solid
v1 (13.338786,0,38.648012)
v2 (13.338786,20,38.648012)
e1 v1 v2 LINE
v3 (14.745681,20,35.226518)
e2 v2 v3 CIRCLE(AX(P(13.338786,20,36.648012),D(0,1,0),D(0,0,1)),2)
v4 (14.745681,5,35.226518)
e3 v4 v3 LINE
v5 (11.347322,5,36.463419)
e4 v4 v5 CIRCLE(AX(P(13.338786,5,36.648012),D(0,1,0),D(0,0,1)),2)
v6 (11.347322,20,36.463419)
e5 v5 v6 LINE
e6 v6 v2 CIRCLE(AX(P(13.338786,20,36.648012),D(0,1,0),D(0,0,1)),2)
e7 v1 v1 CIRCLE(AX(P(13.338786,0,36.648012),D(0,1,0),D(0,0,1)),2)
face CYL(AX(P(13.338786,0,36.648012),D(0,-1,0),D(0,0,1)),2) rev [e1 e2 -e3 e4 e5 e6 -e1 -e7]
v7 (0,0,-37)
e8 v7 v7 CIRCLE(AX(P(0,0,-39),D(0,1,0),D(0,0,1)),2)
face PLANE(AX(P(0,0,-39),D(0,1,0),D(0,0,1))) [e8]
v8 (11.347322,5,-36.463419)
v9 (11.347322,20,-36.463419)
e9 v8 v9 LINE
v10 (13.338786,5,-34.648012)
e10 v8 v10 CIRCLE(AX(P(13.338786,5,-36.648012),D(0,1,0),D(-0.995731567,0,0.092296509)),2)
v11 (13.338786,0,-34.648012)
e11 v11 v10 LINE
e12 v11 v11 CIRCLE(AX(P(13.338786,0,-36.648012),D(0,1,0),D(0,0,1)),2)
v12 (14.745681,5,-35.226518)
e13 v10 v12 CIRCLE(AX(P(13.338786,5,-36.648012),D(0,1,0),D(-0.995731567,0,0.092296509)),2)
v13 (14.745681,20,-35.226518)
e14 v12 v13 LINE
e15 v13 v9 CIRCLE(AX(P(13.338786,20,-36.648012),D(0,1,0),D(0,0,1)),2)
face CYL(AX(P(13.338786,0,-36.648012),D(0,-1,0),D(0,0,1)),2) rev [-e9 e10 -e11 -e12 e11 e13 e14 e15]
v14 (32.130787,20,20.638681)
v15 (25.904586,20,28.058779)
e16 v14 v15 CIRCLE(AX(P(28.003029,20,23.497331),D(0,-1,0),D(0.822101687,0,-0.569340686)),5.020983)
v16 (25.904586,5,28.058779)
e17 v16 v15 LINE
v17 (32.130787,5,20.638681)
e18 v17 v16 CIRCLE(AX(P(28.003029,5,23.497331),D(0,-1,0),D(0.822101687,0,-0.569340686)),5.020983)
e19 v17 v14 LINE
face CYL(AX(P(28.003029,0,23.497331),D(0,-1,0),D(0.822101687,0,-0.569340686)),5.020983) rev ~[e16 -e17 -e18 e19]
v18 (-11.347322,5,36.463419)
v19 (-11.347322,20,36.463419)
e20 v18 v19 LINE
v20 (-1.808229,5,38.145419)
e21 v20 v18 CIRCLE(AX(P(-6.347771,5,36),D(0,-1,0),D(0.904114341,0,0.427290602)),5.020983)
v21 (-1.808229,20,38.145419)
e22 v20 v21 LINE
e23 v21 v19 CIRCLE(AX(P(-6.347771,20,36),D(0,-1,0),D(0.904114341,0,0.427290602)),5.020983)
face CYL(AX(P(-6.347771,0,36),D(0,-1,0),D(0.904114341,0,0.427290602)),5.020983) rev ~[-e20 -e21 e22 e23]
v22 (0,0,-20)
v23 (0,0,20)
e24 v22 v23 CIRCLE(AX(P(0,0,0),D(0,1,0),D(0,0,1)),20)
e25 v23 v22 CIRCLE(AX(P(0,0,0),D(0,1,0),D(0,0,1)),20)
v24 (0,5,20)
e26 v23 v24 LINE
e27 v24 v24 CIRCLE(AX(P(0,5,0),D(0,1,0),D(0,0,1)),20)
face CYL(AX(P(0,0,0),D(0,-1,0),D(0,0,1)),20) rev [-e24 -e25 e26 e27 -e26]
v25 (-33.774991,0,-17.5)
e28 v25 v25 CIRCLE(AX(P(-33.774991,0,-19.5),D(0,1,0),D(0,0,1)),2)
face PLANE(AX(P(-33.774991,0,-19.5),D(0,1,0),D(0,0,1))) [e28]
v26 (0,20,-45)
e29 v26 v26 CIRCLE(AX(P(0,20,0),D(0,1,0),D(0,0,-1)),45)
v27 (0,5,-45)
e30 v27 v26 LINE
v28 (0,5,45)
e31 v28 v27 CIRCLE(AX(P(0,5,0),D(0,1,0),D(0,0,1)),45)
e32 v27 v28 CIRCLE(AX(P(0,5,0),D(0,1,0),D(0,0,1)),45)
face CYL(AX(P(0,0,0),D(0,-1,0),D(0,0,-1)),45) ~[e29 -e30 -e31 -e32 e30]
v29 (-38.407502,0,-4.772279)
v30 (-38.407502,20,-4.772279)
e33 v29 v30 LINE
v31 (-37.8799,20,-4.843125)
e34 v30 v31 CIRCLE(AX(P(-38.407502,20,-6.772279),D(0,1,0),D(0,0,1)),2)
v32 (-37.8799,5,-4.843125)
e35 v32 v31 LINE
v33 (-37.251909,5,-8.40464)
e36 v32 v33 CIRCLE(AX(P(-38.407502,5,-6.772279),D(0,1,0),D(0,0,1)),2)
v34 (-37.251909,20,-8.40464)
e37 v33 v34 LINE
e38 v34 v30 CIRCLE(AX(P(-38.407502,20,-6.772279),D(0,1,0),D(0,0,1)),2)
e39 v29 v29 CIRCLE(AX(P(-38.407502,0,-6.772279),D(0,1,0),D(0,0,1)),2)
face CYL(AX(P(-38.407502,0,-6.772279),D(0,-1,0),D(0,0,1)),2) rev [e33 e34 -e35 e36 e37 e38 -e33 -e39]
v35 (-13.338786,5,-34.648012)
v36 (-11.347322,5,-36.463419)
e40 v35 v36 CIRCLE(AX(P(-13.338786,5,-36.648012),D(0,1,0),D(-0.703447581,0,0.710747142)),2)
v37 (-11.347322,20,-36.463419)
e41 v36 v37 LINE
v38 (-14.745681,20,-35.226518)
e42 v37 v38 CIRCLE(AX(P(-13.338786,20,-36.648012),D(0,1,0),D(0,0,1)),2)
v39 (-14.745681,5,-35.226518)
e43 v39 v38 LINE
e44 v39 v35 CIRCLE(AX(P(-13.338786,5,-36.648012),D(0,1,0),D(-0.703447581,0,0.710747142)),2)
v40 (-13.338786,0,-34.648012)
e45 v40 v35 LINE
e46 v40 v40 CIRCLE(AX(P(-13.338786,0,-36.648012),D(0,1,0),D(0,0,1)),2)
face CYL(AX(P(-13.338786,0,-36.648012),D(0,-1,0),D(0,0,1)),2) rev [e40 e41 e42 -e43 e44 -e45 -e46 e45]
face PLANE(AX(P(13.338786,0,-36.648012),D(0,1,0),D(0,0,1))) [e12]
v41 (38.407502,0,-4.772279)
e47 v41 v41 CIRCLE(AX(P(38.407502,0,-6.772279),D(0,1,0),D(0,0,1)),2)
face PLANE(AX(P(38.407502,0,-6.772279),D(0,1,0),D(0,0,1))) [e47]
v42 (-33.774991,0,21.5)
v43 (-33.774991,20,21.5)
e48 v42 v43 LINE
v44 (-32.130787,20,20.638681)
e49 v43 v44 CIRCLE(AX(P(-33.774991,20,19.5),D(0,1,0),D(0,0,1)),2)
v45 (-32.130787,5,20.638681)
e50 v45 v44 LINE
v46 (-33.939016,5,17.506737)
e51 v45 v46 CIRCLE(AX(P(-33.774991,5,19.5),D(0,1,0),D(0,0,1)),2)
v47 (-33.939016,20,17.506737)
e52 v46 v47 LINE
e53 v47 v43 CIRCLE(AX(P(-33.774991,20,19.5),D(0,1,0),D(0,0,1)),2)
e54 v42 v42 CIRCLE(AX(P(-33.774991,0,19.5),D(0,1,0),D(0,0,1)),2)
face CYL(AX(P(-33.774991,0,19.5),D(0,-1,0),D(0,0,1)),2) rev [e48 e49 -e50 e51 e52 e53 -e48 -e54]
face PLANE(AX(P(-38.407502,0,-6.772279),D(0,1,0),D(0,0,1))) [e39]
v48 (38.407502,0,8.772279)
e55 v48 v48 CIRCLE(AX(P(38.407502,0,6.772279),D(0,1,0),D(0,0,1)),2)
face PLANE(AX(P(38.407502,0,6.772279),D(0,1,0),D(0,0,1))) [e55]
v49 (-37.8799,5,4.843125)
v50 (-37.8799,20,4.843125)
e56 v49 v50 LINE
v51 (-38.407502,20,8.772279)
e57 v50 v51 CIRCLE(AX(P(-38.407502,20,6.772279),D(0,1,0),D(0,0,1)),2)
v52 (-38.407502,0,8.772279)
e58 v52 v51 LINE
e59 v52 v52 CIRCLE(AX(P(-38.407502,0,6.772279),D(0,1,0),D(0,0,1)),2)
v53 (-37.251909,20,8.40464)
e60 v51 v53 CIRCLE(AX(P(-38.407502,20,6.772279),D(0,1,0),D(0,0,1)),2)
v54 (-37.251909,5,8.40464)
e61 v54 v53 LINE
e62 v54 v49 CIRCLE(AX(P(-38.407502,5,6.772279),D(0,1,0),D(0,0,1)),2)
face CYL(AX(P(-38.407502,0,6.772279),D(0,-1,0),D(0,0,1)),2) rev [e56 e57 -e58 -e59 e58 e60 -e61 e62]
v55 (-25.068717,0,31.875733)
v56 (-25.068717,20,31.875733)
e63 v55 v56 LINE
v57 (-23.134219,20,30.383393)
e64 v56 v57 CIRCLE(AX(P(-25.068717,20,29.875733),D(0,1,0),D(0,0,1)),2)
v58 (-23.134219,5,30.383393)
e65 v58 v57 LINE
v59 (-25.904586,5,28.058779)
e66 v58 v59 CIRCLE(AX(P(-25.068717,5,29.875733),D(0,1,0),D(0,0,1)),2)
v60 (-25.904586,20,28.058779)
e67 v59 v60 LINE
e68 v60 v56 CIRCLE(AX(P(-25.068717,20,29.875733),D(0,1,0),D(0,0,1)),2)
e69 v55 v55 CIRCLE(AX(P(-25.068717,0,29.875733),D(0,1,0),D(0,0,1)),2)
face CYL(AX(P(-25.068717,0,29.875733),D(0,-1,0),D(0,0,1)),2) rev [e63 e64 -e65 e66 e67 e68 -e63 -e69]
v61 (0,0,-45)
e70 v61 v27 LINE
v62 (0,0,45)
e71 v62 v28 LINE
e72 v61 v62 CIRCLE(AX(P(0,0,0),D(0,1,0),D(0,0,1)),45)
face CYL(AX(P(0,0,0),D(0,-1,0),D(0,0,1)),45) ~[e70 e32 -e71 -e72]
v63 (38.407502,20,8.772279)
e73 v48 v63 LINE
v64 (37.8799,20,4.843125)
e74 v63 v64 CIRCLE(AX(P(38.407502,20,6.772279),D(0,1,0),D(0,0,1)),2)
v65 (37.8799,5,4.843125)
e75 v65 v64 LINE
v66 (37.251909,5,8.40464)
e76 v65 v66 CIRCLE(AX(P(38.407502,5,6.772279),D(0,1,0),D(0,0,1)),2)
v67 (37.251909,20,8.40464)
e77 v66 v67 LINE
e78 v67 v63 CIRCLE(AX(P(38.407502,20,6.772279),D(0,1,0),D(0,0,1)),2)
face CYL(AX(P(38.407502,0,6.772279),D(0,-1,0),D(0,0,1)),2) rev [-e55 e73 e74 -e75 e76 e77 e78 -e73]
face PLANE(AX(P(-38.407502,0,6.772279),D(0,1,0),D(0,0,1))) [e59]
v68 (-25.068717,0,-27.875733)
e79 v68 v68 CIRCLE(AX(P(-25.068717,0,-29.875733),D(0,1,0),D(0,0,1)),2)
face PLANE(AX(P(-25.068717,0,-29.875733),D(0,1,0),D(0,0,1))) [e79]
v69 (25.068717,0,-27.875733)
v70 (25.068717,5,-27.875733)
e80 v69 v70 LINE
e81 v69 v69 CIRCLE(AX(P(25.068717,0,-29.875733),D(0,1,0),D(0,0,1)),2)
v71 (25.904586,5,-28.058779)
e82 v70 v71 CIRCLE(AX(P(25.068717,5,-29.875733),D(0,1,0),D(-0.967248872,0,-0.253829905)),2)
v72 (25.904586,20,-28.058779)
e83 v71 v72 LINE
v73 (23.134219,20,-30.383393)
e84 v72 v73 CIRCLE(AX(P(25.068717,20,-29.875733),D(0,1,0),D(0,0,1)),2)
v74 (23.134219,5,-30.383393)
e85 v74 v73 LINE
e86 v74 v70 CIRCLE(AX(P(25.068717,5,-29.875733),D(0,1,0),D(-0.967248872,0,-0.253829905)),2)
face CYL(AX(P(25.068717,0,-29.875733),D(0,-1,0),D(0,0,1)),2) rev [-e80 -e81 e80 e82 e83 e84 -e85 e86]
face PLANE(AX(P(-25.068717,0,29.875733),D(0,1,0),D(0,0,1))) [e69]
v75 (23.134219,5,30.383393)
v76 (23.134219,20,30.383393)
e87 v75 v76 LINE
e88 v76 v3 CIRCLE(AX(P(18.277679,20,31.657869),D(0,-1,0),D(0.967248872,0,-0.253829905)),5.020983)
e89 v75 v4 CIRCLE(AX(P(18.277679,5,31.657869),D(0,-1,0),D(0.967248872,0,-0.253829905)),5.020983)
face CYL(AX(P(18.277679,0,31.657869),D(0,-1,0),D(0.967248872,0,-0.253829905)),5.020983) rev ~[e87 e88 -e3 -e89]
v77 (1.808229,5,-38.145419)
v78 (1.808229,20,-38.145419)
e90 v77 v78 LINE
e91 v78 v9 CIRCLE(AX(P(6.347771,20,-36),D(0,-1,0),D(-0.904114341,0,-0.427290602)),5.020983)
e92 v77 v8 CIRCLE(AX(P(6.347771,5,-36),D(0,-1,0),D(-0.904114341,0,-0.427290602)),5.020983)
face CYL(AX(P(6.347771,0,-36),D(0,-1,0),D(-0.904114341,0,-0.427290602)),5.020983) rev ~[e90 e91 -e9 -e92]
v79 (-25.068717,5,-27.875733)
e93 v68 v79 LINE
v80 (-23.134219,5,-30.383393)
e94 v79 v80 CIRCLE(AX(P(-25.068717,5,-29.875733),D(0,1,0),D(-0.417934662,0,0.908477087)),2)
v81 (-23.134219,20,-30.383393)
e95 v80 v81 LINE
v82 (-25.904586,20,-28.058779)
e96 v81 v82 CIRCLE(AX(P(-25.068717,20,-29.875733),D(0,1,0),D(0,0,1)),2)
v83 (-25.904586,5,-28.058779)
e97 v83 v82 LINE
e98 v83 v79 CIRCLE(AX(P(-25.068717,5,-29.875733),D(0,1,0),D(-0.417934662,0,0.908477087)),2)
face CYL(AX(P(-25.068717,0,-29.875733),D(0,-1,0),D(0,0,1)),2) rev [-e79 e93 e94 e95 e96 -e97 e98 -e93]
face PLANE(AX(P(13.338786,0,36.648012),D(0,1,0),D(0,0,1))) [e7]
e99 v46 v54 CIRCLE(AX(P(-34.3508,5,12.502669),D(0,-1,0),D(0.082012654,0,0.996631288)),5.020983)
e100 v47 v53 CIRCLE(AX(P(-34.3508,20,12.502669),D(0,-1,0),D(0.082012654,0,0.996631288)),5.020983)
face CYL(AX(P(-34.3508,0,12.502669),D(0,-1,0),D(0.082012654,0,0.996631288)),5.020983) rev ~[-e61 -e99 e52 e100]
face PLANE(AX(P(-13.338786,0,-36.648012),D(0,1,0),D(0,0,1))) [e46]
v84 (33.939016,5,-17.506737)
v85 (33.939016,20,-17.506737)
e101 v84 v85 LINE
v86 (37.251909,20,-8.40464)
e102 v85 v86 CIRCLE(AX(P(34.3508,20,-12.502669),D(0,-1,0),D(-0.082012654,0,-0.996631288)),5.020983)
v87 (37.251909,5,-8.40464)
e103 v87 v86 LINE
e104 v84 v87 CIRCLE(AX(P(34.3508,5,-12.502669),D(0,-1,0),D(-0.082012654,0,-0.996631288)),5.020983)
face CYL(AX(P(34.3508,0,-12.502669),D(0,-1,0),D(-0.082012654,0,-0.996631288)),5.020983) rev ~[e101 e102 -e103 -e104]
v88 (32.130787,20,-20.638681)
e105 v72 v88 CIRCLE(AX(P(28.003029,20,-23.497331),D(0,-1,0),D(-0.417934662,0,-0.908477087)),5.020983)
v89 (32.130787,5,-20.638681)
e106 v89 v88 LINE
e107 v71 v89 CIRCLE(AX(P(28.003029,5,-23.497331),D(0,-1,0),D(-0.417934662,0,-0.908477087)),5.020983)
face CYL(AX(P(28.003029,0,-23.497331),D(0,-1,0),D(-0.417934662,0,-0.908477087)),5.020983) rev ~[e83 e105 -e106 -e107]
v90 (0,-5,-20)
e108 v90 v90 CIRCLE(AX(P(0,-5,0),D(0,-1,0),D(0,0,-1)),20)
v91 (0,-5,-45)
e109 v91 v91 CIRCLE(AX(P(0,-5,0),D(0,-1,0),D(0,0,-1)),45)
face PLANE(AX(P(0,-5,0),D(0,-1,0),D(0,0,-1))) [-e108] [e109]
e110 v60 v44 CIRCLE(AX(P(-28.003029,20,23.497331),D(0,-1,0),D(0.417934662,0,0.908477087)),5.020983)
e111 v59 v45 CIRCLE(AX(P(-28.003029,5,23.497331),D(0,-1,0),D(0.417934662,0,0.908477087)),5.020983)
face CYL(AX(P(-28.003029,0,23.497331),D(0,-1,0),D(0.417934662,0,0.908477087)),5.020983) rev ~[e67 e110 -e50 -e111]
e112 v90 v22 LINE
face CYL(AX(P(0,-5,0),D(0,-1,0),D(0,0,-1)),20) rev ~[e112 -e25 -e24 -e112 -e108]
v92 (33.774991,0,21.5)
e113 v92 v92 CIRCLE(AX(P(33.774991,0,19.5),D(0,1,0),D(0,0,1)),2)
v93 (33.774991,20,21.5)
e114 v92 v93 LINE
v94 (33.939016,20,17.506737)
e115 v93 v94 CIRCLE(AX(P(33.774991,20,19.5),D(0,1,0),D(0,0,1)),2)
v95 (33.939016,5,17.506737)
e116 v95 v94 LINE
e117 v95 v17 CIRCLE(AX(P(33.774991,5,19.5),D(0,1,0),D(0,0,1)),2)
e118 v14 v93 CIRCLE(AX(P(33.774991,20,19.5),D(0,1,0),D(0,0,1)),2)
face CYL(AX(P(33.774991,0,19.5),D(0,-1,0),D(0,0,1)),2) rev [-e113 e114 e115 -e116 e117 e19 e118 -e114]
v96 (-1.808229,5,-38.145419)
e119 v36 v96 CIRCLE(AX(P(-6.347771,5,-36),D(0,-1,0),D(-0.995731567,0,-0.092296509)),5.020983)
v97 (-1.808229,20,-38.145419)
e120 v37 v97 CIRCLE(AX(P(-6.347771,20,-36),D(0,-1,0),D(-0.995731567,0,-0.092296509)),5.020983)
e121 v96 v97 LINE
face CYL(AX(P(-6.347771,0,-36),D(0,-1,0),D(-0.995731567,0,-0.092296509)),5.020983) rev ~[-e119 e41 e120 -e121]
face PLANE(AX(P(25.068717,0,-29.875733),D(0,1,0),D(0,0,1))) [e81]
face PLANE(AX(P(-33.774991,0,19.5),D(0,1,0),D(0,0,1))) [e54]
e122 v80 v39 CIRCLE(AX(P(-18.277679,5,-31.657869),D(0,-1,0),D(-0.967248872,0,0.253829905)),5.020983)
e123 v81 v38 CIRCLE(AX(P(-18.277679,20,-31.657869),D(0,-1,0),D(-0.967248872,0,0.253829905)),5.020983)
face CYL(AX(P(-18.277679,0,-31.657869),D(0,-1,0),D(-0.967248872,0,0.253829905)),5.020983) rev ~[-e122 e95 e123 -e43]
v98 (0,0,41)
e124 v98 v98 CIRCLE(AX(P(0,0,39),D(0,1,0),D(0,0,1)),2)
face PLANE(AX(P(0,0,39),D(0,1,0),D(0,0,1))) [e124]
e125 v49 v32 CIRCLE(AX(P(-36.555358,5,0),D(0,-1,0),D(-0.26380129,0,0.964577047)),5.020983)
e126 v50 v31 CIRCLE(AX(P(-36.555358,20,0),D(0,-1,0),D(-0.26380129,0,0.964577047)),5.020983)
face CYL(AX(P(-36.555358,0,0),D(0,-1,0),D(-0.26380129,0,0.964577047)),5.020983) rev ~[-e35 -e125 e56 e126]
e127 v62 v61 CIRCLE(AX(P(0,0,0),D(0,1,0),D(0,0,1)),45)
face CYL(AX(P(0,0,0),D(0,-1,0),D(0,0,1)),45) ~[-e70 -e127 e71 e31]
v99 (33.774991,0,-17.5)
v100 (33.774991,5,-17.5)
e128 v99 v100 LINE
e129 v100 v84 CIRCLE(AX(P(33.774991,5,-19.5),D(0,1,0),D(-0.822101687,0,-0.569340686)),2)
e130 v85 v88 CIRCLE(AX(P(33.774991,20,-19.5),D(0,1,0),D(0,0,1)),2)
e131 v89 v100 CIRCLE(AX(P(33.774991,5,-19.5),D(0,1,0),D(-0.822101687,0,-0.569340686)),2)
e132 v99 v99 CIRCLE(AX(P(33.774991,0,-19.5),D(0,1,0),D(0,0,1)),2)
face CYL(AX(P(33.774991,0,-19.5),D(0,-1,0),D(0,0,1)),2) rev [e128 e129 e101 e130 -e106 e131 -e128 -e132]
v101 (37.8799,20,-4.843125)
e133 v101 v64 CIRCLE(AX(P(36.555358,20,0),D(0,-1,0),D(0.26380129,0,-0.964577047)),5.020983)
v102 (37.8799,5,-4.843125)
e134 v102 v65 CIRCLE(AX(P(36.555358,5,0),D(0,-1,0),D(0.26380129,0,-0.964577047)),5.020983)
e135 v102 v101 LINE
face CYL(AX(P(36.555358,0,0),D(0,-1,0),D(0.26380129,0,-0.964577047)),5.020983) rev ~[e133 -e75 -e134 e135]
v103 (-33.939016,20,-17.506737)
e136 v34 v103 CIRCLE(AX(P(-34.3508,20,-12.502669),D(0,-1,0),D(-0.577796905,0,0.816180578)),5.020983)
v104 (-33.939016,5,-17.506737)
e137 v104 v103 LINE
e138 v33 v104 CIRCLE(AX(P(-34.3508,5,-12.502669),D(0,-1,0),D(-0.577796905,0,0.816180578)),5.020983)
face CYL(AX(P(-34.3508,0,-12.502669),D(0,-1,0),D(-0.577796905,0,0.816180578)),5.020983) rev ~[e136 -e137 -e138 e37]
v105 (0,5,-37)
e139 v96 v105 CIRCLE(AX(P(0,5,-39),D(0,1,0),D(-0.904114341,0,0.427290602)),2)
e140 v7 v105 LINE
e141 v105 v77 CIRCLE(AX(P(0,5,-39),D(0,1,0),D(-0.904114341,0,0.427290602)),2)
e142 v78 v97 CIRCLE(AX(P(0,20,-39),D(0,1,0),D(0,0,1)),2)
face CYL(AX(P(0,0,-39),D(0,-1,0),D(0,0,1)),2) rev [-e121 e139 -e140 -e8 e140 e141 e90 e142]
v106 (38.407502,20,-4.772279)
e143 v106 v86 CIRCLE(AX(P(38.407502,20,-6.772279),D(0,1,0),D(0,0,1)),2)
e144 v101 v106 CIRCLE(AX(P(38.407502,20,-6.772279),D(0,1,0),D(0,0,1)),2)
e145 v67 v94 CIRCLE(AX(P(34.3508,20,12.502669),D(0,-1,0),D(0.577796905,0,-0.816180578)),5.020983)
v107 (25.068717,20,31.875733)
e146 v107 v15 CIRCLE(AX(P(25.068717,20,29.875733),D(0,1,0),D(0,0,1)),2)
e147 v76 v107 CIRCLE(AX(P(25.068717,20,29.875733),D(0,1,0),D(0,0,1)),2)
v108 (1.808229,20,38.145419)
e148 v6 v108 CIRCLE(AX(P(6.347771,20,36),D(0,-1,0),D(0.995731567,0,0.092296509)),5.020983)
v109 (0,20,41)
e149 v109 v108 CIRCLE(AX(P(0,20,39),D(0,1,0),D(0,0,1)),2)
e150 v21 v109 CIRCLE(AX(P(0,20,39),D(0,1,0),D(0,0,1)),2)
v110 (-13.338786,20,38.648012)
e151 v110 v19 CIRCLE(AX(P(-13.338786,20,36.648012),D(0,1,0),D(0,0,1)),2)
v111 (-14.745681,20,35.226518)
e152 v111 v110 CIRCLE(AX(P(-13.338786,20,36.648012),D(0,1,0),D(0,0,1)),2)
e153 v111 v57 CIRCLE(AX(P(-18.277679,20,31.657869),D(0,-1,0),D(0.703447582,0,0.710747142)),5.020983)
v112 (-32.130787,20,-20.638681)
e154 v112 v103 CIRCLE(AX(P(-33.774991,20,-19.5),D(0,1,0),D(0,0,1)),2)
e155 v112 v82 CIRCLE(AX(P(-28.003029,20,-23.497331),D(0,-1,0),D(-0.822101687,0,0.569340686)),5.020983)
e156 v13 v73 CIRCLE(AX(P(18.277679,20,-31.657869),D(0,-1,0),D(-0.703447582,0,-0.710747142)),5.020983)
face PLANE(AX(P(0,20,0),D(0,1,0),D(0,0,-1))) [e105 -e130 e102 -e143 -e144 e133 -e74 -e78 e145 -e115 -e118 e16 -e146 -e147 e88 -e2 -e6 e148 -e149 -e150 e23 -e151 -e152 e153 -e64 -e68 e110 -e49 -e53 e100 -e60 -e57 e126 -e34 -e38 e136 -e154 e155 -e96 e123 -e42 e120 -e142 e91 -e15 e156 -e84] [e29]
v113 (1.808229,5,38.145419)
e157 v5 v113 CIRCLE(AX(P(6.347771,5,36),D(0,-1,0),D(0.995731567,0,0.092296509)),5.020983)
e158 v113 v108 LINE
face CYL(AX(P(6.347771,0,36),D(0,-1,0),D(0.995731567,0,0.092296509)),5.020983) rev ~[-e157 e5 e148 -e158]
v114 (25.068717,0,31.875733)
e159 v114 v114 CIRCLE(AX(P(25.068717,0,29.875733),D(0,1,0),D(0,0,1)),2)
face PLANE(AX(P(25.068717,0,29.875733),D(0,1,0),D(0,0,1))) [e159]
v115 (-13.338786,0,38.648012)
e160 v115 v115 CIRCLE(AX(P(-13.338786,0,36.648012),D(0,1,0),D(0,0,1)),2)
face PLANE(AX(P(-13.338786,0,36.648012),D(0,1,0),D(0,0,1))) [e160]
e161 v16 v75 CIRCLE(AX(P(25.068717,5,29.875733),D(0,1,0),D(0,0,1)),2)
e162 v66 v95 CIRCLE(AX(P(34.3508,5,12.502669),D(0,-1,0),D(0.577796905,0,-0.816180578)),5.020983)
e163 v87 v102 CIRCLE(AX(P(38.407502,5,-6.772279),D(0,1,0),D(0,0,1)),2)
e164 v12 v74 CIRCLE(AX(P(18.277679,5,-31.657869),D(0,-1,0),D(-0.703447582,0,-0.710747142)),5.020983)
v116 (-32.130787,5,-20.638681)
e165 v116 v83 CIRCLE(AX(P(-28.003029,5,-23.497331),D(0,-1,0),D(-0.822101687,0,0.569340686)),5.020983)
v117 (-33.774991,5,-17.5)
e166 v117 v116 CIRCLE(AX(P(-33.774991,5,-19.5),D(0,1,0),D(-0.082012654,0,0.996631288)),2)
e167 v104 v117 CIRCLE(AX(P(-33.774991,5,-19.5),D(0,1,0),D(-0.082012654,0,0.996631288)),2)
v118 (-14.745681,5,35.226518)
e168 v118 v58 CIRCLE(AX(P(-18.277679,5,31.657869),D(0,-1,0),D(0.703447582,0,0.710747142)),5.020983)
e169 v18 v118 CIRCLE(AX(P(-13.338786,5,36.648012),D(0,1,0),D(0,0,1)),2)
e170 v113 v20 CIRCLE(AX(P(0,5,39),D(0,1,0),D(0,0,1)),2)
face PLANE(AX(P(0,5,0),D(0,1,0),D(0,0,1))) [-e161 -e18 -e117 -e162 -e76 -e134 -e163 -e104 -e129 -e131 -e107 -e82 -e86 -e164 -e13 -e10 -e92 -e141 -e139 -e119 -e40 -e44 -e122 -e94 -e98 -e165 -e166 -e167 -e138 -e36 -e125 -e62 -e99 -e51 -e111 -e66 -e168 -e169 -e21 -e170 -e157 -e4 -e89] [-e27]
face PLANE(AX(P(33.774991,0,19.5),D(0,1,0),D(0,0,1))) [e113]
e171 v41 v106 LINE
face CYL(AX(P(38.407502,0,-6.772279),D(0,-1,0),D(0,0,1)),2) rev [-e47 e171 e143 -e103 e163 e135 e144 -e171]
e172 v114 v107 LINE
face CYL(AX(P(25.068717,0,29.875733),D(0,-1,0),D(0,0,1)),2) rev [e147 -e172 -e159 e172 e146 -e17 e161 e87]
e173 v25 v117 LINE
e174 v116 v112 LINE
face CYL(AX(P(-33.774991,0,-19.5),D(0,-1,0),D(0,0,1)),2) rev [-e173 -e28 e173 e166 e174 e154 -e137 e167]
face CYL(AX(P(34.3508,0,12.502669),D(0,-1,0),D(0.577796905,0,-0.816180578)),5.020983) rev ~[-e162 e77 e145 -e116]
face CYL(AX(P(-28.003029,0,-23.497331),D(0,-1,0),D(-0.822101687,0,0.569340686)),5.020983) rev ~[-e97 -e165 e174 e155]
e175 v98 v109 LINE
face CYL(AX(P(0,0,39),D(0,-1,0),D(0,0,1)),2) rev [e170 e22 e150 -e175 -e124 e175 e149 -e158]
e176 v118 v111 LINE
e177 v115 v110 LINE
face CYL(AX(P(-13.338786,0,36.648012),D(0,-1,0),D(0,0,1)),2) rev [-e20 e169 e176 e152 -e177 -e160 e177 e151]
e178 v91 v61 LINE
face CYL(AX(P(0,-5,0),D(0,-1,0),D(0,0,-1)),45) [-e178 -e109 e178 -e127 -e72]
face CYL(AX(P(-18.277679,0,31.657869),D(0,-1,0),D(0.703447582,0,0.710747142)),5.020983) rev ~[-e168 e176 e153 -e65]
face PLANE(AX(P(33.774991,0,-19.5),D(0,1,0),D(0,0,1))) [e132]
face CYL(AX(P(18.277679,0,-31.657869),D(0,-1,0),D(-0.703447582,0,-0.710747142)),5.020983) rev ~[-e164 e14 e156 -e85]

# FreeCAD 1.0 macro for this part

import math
import FreeCAD as App
import Part
import Sketcher

V = App.Vector
Q = App.Units.Quantity

doc = App.newDocument("Part")
body = doc.addObject("PartDesign::Body", "Body")

# Sketch on XZ plane
sketch1 = body.newObject("Sketcher::SketchObject", "Sketch")
sketch1.AttachmentSupport = (doc.getObject("XZ_Plane"), [""])
sketch1.MapMode = "FlatFace"
sketch1.addGeometry(Part.Circle(V(0, 0, 0), V(0, 0, 1), 45), False)
sketch1.addGeometry(Part.Circle(V(-25.1, -29.9, 0), V(0, 0, 1), 2), False)
sketch1.addGeometry(Part.Circle(V(-33.8, -19.5, 0), V(0, 0, 1), 2), False)
sketch1.addGeometry(Part.Circle(V(-38.4, -6.8, 0), V(0, 0, 1), 2), False)
sketch1.addGeometry(Part.Circle(V(-13.3, -36.6, 0), V(0, 0, 1), 2), False)
sketch1.addGeometry(Part.Circle(V(0, -39, 0), V(0, 0, 1), 2), False)
sketch1.addGeometry(Part.Circle(V(-38.4, 6.8, 0), V(0, 0, 1), 2), False)
sketch1.addGeometry(Part.Circle(V(-33.8, 19.5, 0), V(0, 0, 1), 2), False)
sketch1.addGeometry(Part.Circle(V(-25.1, 29.9, 0), V(0, 0, 1), 2), False)
sketch1.addGeometry(Part.Circle(V(-13.3, 36.6, 0), V(0, 0, 1), 2), False)
sketch1.addGeometry(Part.Circle(V(13.3, -36.6, 0), V(0, 0, 1), 2), False)
sketch1.addGeometry(Part.Circle(V(25.1, -29.9, 0), V(0, 0, 1), 2), False)
sketch1.addGeometry(Part.Circle(V(33.8, -19.5, 0), V(0, 0, 1), 2), False)
sketch1.addGeometry(Part.Circle(V(38.4, -6.8, 0), V(0, 0, 1), 2), False)
sketch1.addGeometry(Part.Circle(V(0, 0, 0), V(0, 0, 1), 20), False)
sketch1.addGeometry(Part.Circle(V(0, 39, 0), V(0, 0, 1), 2), False)
sketch1.addGeometry(Part.Circle(V(13.3, 36.6, 0), V(0, 0, 1), 2), False)
sketch1.addGeometry(Part.Circle(V(38.4, 6.8, 0), V(0, 0, 1), 2), False)
sketch1.addGeometry(Part.Circle(V(33.8, 19.5, 0), V(0, 0, 1), 2), False)
sketch1.addGeometry(Part.Circle(V(25.1, 29.9, 0), V(0, 0, 1), 2), False)
sketch1.addConstraint(Sketcher.Constraint("Coincident", 0, 3, -1, 1))
sketch1.addConstraint(Sketcher.Constraint("Coincident", 14, 3, -1, 1))
sketch1.addConstraint(Sketcher.Constraint("Equal", 1, 2))
sketch1.addConstraint(Sketcher.Constraint("Equal", 2, 3))
sketch1.addConstraint(Sketcher.Constraint("Equal", 3, 4))
sketch1.addConstraint(Sketcher.Constraint("Equal", 4, 5))
sketch1.addConstraint(Sketcher.Constraint("Equal", 5, 6))
sketch1.addConstraint(Sketcher.Constraint("Equal", 6, 7))
sketch1.addConstraint(Sketcher.Constraint("Equal", 7, 8))
sketch1.addConstraint(Sketcher.Constraint("Equal", 8, 9))
sketch1.addConstraint(Sketcher.Constraint("Equal", 9, 10))
sketch1.addConstraint(Sketcher.Constraint("Equal", 10, 11))
sketch1.addConstraint(Sketcher.Constraint("Equal", 11, 12))
sketch1.addConstraint(Sketcher.Constraint("Equal", 12, 13))
sketch1.addConstraint(Sketcher.Constraint("Equal", 13, 15))
sketch1.addConstraint(Sketcher.Constraint("Equal", 15, 16))
sketch1.addConstraint(Sketcher.Constraint("Equal", 16, 17))
sketch1.addConstraint(Sketcher.Constraint("Equal", 17, 18))
sketch1.addConstraint(Sketcher.Constraint("Equal", 18, 19))
sketch1.addConstraint(Sketcher.Constraint("Symmetric", 9, 3, 10, 3, -1, 1))
sketch1.addConstraint(Sketcher.Constraint("Symmetric", 8, 3, 11, 3, -1, 1))
sketch1.addConstraint(Sketcher.Constraint("Symmetric", 7, 3, 12, 3, -1, 1))
sketch1.addConstraint(Sketcher.Constraint("Symmetric", 6, 3, 13, 3, -1, 1))
sketch1.addConstraint(Sketcher.Constraint("Symmetric", 5, 3, 15, 3, -1, 1))
sketch1.addConstraint(Sketcher.Constraint("Symmetric", 4, 3, 16, 3, -1, 1))
sketch1.addConstraint(Sketcher.Constraint("Symmetric", 3, 3, 17, 3, -1, 1))
sketch1.addConstraint(Sketcher.Constraint("Symmetric", 2, 3, 18, 3, -1, 1))
sketch1.addConstraint(Sketcher.Constraint("Symmetric", 1, 3, 19, 3, -1, 1))
sketch1.addConstraint(Sketcher.Constraint("Symmetric", 4, 3, 10, 3, -2))
sketch1.addConstraint(Sketcher.Constraint("Symmetric", 1, 3, 11, 3, -2))
sketch1.addConstraint(Sketcher.Constraint("Symmetric", 2, 3, 12, 3, -2))
sketch1.addConstraint(Sketcher.Constraint("Symmetric", 3, 3, 13, 3, -2))
sketch1.addConstraint(Sketcher.Constraint("PointOnObject", 5, 3, -2))
sketch1.addConstraint(Sketcher.Constraint("Diameter", 0, Q("90 mm")))
sketch1.addConstraint(Sketcher.Constraint("Diameter", 1, Q("4 mm")))
sketch1.addConstraint(Sketcher.Constraint("Diameter", 14, Q("40 mm")))
sketch1.addConstraint(Sketcher.Constraint("DistanceY", 5, 3, -1, 1, Q("39 mm")))
sketch1.addConstraint(Sketcher.Constraint("DistanceY", 2, 3, 7, 3, Q("39 mm")))
sketch1.addConstraint(Sketcher.Constraint("DistanceX", 2, 3, -1, 1, Q("33.774991 mm")))
sketch1.addConstraint(Sketcher.Constraint("DistanceY", 3, 3, -1, 1, Q("6.772279 mm")))
sketch1.addConstraint(Sketcher.Constraint("DistanceX", 3, 3, 2, 3, Q("4.632512 mm")))
sketch1.addConstraint(Sketcher.Constraint("DistanceX", 1, 3, 4, 3, Q("11.729931 mm")))
sketch1.addConstraint(Sketcher.Constraint("DistanceY", 4, 3, 1, 3, Q("6.772279 mm")))
sketch1.addConstraint(Sketcher.Constraint("DistanceY", 4, 3, 6, 3, Q("43.420291 mm")))
sketch1.addConstraint(Sketcher.Constraint("DistanceX", 4, 3, 10, 3, Q("26.677571 mm")))
pad1 = body.newObject("PartDesign::Pad", "Pad")
pad1.Profile = sketch1
pad1.Length = 5
pad1.Reversed = True

# Sketch on XZ plane
sketch2 = body.newObject("Sketcher::SketchObject", "Sketch001")
sketch2.AttachmentSupport = (doc.getObject("XZ_Plane"), [""])
sketch2.MapMode = "FlatFace"
sketch2.AttachmentOffset = App.Placement(V(0, 0, 5), App.Rotation())
sketch2.addGeometry(Part.Circle(V(0, 0, 0), V(0, 0, 1), 45), False)
sketch2.addGeometry(Part.Circle(V(0, 0, 0), V(0, 0, 1), 20), False)
sketch2.addConstraint(Sketcher.Constraint("Coincident", 0, 3, -1, 1))
sketch2.addConstraint(Sketcher.Constraint("Coincident", 1, 3, -1, 1))
sketch2.addConstraint(Sketcher.Constraint("Diameter", 0, Q("90 mm")))
sketch2.addConstraint(Sketcher.Constraint("Diameter", 1, Q("40 mm")))
pad2 = body.newObject("PartDesign::Pad", "Pad001")
pad2.Profile = sketch2
pad2.Length = 5
pad2.Reversed = True

# Sketch on XZ plane
sketch3 = body.newObject("Sketcher::SketchObject", "Sketch002")
sketch3.AttachmentSupport = (doc.getObject("XZ_Plane"), [""])
sketch3.MapMode = "FlatFace"
sketch3.addGeometry(Part.Circle(V(0, 0, 0), V(0, 0, 1), 45), False)
sketch3.addGeometry(Part.ArcOfCircle(Part.Circle(V(-34.4, -12.5, 0), V(0, 0, 1), 5), math.radians(125), math.radians(275)), False)
sketch3.addGeometry(Part.ArcOfCircle(Part.Circle(V(-33.8, -19.5, 0), V(0, 0, 1), 2), math.radians(-35), math.radians(95)), False)
sketch3.addGeometry(Part.ArcOfCircle(Part.Circle(V(-28, -23.5, 0), V(0, 0, 1), 5), math.radians(145), math.radians(295)), False)
sketch3.addGeometry(Part.ArcOfCircle(Part.Circle(V(-25.1, -29.9, 0), V(0, 0, 1), 2), math.radians(-15), math.radians(115)), False)
sketch3.addGeometry(Part.ArcOfCircle(Part.Circle(V(-18.3, -31.7, 0), V(0, 0, 1), 5), math.radians(165), math.radians(315)), False)
sketch3.addGeometry(Part.ArcOfCircle(Part.Circle(V(-13.3, -36.6, 0), V(0, 0, 1), 2), math.radians(5), math.radians(135)), False)
sketch3.addGeometry(Part.ArcOfCircle(Part.Circle(V(-6.3, -36, 0), V(0, 0, 1), 5), math.radians(-175), math.radians(-25)), False)
sketch3.addGeometry(Part.ArcOfCircle(Part.Circle(V(0, -39, 0), V(0, 0, 1), 2), math.radians(25), math.radians(155)), False)
sketch3.addGeometry(Part.ArcOfCircle(Part.Circle(V(6.3, -36, 0), V(0, 0, 1), 5), math.radians(-155), math.radians(-5)), False)
sketch3.addGeometry(Part.ArcOfCircle(Part.Circle(V(13.3, -36.6, 0), V(0, 0, 1), 2), math.radians(45), math.radians(175)), False)
sketch3.addGeometry(Part.ArcOfCircle(Part.Circle(V(18.3, -31.7, 0), V(0, 0, 1), 5), math.radians(-135), math.radians(15)), False)
sketch3.addGeometry(Part.ArcOfCircle(Part.Circle(V(25.1, -29.9, 0), V(0, 0, 1), 2), math.radians(65), math.radians(195)), False)
sketch3.addGeometry(Part.ArcOfCircle(Part.Circle(V(28, -23.5, 0), V(0, 0, 1), 5), math.radians(-115), math.radians(35)), False)
sketch3.addGeometry(Part.ArcOfCircle(Part.Circle(V(33.8, -19.5, 0), V(0, 0, 1), 2), math.radians(85), math.radians(215)), False)
sketch3.addGeometry(Part.ArcOfCircle(Part.Circle(V(34.4, -12.5, 0), V(0, 0, 1), 5), math.radians(-95), math.radians(55)), False)
sketch3.addGeometry(Part.ArcOfCircle(Part.Circle(V(38.4, -6.8, 0), V(0, 0, 1), 2), math.radians(105), math.radians(235)), False)
sketch3.addGeometry(Part.ArcOfCircle(Part.Circle(V(36.6, 0, 0), V(0, 0, 1), 5), math.radians(-75), math.radians(75)), False)
sketch3.addGeometry(Part.ArcOfCircle(Part.Circle(V(38.4, 6.8, 0), V(0, 0, 1), 2), math.radians(125), math.radians(255)), False)
sketch3.addGeometry(Part.ArcOfCircle(Part.Circle(V(34.4, 12.5, 0), V(0, 0, 1), 5), math.radians(-55), math.radians(95)), False)
sketch3.addGeometry(Part.ArcOfCircle(Part.Circle(V(33.8, 19.5, 0), V(0, 0, 1), 2), math.radians(145), math.radians(275)), False)
sketch3.addGeometry(Part.ArcOfCircle(Part.Circle(V(28, 23.5, 0), V(0, 0, 1), 5), math.radians(-35), math.radians(115)), False)
sketch3.addGeometry(Part.ArcOfCircle(Part.Circle(V(25.1, 29.9, 0), V(0, 0, 1), 2), math.radians(165), math.radians(295)), False)
sketch3.addGeometry(Part.ArcOfCircle(Part.Circle(V(18.3, 31.7, 0), V(0, 0, 1), 5), math.radians(-15), math.radians(135)), False)
sketch3.addGeometry(Part.ArcOfCircle(Part.Circle(V(13.3, 36.6, 0), V(0, 0, 1), 2), math.radians(-175), math.radians(-45)), False)
sketch3.addGeometry(Part.ArcOfCircle(Part.Circle(V(6.3, 36, 0), V(0, 0, 1), 5), math.radians(5), math.radians(155)), False)
sketch3.addGeometry(Part.ArcOfCircle(Part.Circle(V(0, 39, 0), V(0, 0, 1), 2), math.radians(-155), math.radians(-25)), False)
sketch3.addGeometry(Part.ArcOfCircle(Part.Circle(V(-6.3, 36, 0), V(0, 0, 1), 5), math.radians(25), math.radians(175)), False)
sketch3.addGeometry(Part.ArcOfCircle(Part.Circle(V(-13.3, 36.6, 0), V(0, 0, 1), 2), math.radians(-135), math.radians(-5)), False)
sketch3.addGeometry(Part.ArcOfCircle(Part.Circle(V(-18.3, 31.7, 0), V(0, 0, 1), 5), math.radians(45), math.radians(195)), False)
sketch3.addGeometry(Part.ArcOfCircle(Part.Circle(V(-25.1, 29.9, 0), V(0, 0, 1), 2), math.radians(-115), math.radians(15)), False)
sketch3.addGeometry(Part.ArcOfCircle(Part.Circle(V(-28, 23.5, 0), V(0, 0, 1), 5), math.radians(65), math.radians(215)), False)
sketch3.addGeometry(Part.ArcOfCircle(Part.Circle(V(-33.8, 19.5, 0), V(0, 0, 1), 2), math.radians(-95), math.radians(35)), False)
sketch3.addGeometry(Part.ArcOfCircle(Part.Circle(V(-34.4, 12.5, 0), V(0, 0, 1), 5), math.radians(85), math.radians(235)), False)
sketch3.addGeometry(Part.ArcOfCircle(Part.Circle(V(-38.4, 6.8, 0), V(0, 0, 1), 2), math.radians(-75), math.radians(55)), False)
sketch3.addGeometry(Part.ArcOfCircle(Part.Circle(V(-36.6, 0, 0), V(0, 0, 1), 5), math.radians(105), math.radians(255)), False)
sketch3.addGeometry(Part.ArcOfCircle(Part.Circle(V(-38.4, -6.8, 0), V(0, 0, 1), 2), math.radians(-55), math.radians(75)), False)
sketch3.addConstraint(Sketcher.Constraint("Tangent", 1, 2, 2, 2))
sketch3.addConstraint(Sketcher.Constraint("Tangent", 2, 1, 3, 1))
sketch3.addConstraint(Sketcher.Constraint("Tangent", 3, 2, 4, 2))
sketch3.addConstraint(Sketcher.Constraint("Tangent", 4, 1, 5, 1))
sketch3.addConstraint(Sketcher.Constraint("Tangent", 5, 2, 6, 2))
sketch3.addConstraint(Sketcher.Constraint("Tangent", 6, 1, 7, 1))
sketch3.addConstraint(Sketcher.Constraint("Tangent", 7, 2, 8, 2))
sketch3.addConstraint(Sketcher.Constraint("Tangent", 8, 1, 9, 1))
sketch3.addConstraint(Sketcher.Constraint("Tangent", 9, 2, 10, 2))
sketch3.addConstraint(Sketcher.Constraint("Tangent", 10, 1, 11, 1))
sketch3.addConstraint(Sketcher.Constraint("Tangent", 11, 2, 12, 2))
sketch3.addConstraint(Sketcher.Constraint("Tangent", 12, 1, 13, 1))
sketch3.addConstraint(Sketcher.Constraint("Tangent", 13, 2, 14, 2))
sketch3.addConstraint(Sketcher.Constraint("Tangent", 14, 1, 15, 1))
sketch3.addConstraint(Sketcher.Constraint("Tangent", 15, 2, 16, 2))
sketch3.addConstraint(Sketcher.Constraint("Tangent", 16, 1, 17, 1))
sketch3.addConstraint(Sketcher.Constraint("Tangent", 17, 2, 18, 2))
sketch3.addConstraint(Sketcher.Constraint("Tangent", 18, 1, 19, 1))
sketch3.addConstraint(Sketcher.Constraint("Tangent", 19, 2, 20, 2))
sketch3.addConstraint(Sketcher.Constraint("Tangent", 20, 1, 21, 1))
sketch3.addConstraint(Sketcher.Constraint("Tangent", 21, 2, 22, 2))
sketch3.addConstraint(Sketcher.Constraint("Tangent", 22, 1, 23, 1))
sketch3.addConstraint(Sketcher.Constraint("Tangent", 23, 2, 24, 2))
sketch3.addConstraint(Sketcher.Constraint("Tangent", 24, 1, 25, 1))
sketch3.addConstraint(Sketcher.Constraint("Tangent", 25, 2, 26, 2))
sketch3.addConstraint(Sketcher.Constraint("Tangent", 26, 1, 27, 1))
sketch3.addConstraint(Sketcher.Constraint("Tangent", 27, 2, 28, 2))
sketch3.addConstraint(Sketcher.Constraint("Tangent", 28, 1, 29, 1))
sketch3.addConstraint(Sketcher.Constraint("Tangent", 29, 2, 30, 2))
sketch3.addConstraint(Sketcher.Constraint("Tangent", 30, 1, 31, 1))
sketch3.addConstraint(Sketcher.Constraint("Tangent", 31, 2, 32, 2))
sketch3.addConstraint(Sketcher.Constraint("Tangent", 32, 1, 33, 1))
sketch3.addConstraint(Sketcher.Constraint("Tangent", 33, 2, 34, 2))
sketch3.addConstraint(Sketcher.Constraint("Tangent", 34, 1, 35, 1))
sketch3.addConstraint(Sketcher.Constraint("Tangent", 35, 2, 36, 2))
sketch3.addConstraint(Sketcher.Constraint("Tangent", 36, 1, 1, 1))
sketch3.addConstraint(Sketcher.Constraint("Coincident", 0, 3, -1, 1))
sketch3.addConstraint(Sketcher.Constraint("Equal", 1, 3))
sketch3.addConstraint(Sketcher.Constraint("Equal", 2, 4))
sketch3.addConstraint(Sketcher.Constraint("Equal", 3, 5))
sketch3.addConstraint(Sketcher.Constraint("Equal", 4, 6))
sketch3.addConstraint(Sketcher.Constraint("Equal", 5, 7))
sketch3.addConstraint(Sketcher.Constraint("Equal", 6, 8))
sketch3.addConstraint(Sketcher.Constraint("Equal", 7, 9))
sketch3.addConstraint(Sketcher.Constraint("Equal", 8, 10))
sketch3.addConstraint(Sketcher.Constraint("Equal", 9, 11))
sketch3.addConstraint(Sketcher.Constraint("Equal", 10, 12))
sketch3.addConstraint(Sketcher.Constraint("Equal", 11, 13))
sketch3.addConstraint(Sketcher.Constraint("Equal", 12, 14))
sketch3.addConstraint(Sketcher.Constraint("Equal", 13, 15))
sketch3.addConstraint(Sketcher.Constraint("Equal", 14, 16))
sketch3.addConstraint(Sketcher.Constraint("Equal", 15, 17))
sketch3.addConstraint(Sketcher.Constraint("Equal", 16, 18))
sketch3.addConstraint(Sketcher.Constraint("Equal", 17, 19))
sketch3.addConstraint(Sketcher.Constraint("Equal", 18, 20))
sketch3.addConstraint(Sketcher.Constraint("Equal", 19, 21))
sketch3.addConstraint(Sketcher.Constraint("Equal", 20, 22))
sketch3.addConstraint(Sketcher.Constraint("Equal", 21, 23))
sketch3.addConstraint(Sketcher.Constraint("Equal", 22, 24))
sketch3.addConstraint(Sketcher.Constraint("Equal", 23, 25))
sketch3.addConstraint(Sketcher.Constraint("Equal", 24, 26))
sketch3.addConstraint(Sketcher.Constraint("Equal", 25, 27))
sketch3.addConstraint(Sketcher.Constraint("Equal", 26, 28))
sketch3.addConstraint(Sketcher.Constraint("Equal", 27, 29))
sketch3.addConstraint(Sketcher.Constraint("Equal", 28, 30))
sketch3.addConstraint(Sketcher.Constraint("Equal", 29, 31))
sketch3.addConstraint(Sketcher.Constraint("Equal", 30, 32))
sketch3.addConstraint(Sketcher.Constraint("Equal", 31, 33))
sketch3.addConstraint(Sketcher.Constraint("Equal", 32, 34))
sketch3.addConstraint(Sketcher.Constraint("Equal", 33, 35))
sketch3.addConstraint(Sketcher.Constraint("Equal", 34, 36))
sketch3.addConstraint(Sketcher.Constraint("Symmetric", 1, 3, 19, 3, -1, 1))
sketch3.addConstraint(Sketcher.Constraint("Symmetric", 3, 3, 21, 3, -1, 1))
sketch3.addConstraint(Sketcher.Constraint("Symmetric", 5, 3, 23, 3, -1, 1))
sketch3.addConstraint(Sketcher.Constraint("Symmetric", 7, 3, 25, 3, -1, 1))
sketch3.addConstraint(Sketcher.Constraint("Symmetric", 9, 3, 27, 3, -1, 1))
sketch3.addConstraint(Sketcher.Constraint("Symmetric", 11, 3, 29, 3, -1, 1))
sketch3.addConstraint(Sketcher.Constraint("Symmetric", 13, 3, 31, 3, -1, 1))
sketch3.addConstraint(Sketcher.Constraint("Symmetric", 15, 3, 33, 3, -1, 1))
sketch3.addConstraint(Sketcher.Constraint("Symmetric", 17, 3, 35, 3, -1, 1))
sketch3.addConstraint(Sketcher.Constraint("Symmetric", 7, 3, 9, 3, -2))
sketch3.addConstraint(Sketcher.Constraint("Symmetric", 5, 3, 11, 3, -2))
sketch3.addConstraint(Sketcher.Constraint("Symmetric", 3, 3, 13, 3, -2))
sketch3.addConstraint(Sketcher.Constraint("Symmetric", 1, 3, 15, 3, -2))
sketch3.addConstraint(Sketcher.Constraint("PointOnObject", 17, 3, -1))
sketch3.addConstraint(Sketcher.Constraint("Diameter", 0, Q("90 mm")))
sketch3.addConstraint(Sketcher.Constraint("Radius", 2, Q("2 mm")))
sketch3.addConstraint(Sketcher.Constraint("DistanceY", 7, 3, -1, 1, Q("36 mm")))
sketch3.addConstraint(Sketcher.Constraint("DistanceY", 8, 3, -1, 1, Q("39 mm")))
sketch3.addConstraint(Sketcher.Constraint("DistanceY", 2, 3, -1, 1, Q("19.5 mm")))
sketch3.addConstraint(Sketcher.Constraint("Radius", 1, Q("5.020983 mm")))
sketch3.addConstraint(Sketcher.Constraint("DistanceX", 1, 3, -1, 1, Q("34.3508 mm")))
sketch3.addConstraint(Sketcher.Constraint("DistanceX", -1, 1, 16, 1, Q("37.8799 mm")))
sketch3.addConstraint(Sketcher.Constraint("DistanceY", 1, 3, -1, 1, Q("12.502669 mm")))
sketch3.addConstraint(Sketcher.Constraint("DistanceX", 3, 3, -1, 1, Q("28.003029 mm")))
sketch3.addConstraint(Sketcher.Constraint("DistanceX", 5, 3, -1, 1, Q("18.277679 mm")))
sketch3.addConstraint(Sketcher.Constraint("DistanceY", 5, 3, -1, 1, Q("31.657869 mm")))
pad3 = body.newObject("PartDesign::Pad", "Pad002")
pad3.Profile = sketch3
pad3.Length = 20
pad3.Reversed = True

# Sketch on XZ plane
sketch4 = body.newObject("Sketcher::SketchObject", "Sketch003")
sketch4.AttachmentSupport = (doc.getObject("XZ_Plane"), [""])
sketch4.MapMode = "FlatFace"
sketch4.addGeometry(Part.Circle(V(0, -39, 0), V(0, 0, 1), 2), False)
sketch4.addGeometry(Part.Circle(V(13.3, -36.6, 0), V(0, 0, 1), 2), False)
sketch4.addGeometry(Part.Circle(V(25.1, -29.9, 0), V(0, 0, 1), 2), False)
sketch4.addGeometry(Part.Circle(V(33.8, -19.5, 0), V(0, 0, 1), 2), False)
sketch4.addGeometry(Part.Circle(V(38.4, -6.8, 0), V(0, 0, 1), 2), False)
sketch4.addGeometry(Part.Circle(V(38.4, 6.8, 0), V(0, 0, 1), 2), False)
sketch4.addGeometry(Part.Circle(V(33.8, 19.5, 0), V(0, 0, 1), 2), False)
sketch4.addGeometry(Part.Circle(V(25.1, 29.9, 0), V(0, 0, 1), 2), False)
sketch4.addGeometry(Part.Circle(V(13.3, 36.6, 0), V(0, 0, 1), 2), False)
sketch4.addGeometry(Part.Circle(V(0, 39, 0), V(0, 0, 1), 2), False)
sketch4.addGeometry(Part.Circle(V(-13.3, 36.6, 0), V(0, 0, 1), 2), False)
sketch4.addGeometry(Part.Circle(V(-25.1, 29.9, 0), V(0, 0, 1), 2), False)
sketch4.addGeometry(Part.Circle(V(-33.8, 19.5, 0), V(0, 0, 1), 2), False)
sketch4.addGeometry(Part.Circle(V(-38.4, 6.8, 0), V(0, 0, 1), 2), False)
sketch4.addGeometry(Part.Circle(V(-38.4, -6.8, 0), V(0, 0, 1), 2), False)
sketch4.addGeometry(Part.Circle(V(-33.8, -19.5, 0), V(0, 0, 1), 2), False)
sketch4.addGeometry(Part.Circle(V(-25.1, -29.9, 0), V(0, 0, 1), 2), False)
sketch4.addGeometry(Part.Circle(V(-13.3, -36.6, 0), V(0, 0, 1), 2), False)
sketch4.addConstraint(Sketcher.Constraint("Equal", 0, 1))
sketch4.addConstraint(Sketcher.Constraint("Equal", 1, 2))
sketch4.addConstraint(Sketcher.Constraint("Equal", 2, 3))
sketch4.addConstraint(Sketcher.Constraint("Equal", 3, 4))
sketch4.addConstraint(Sketcher.Constraint("Equal", 4, 5))
sketch4.addConstraint(Sketcher.Constraint("Equal", 5, 6))
sketch4.addConstraint(Sketcher.Constraint("Equal", 6, 7))
sketch4.addConstraint(Sketcher.Constraint("Equal", 7, 8))
sketch4.addConstraint(Sketcher.Constraint("Equal", 8, 9))
sketch4.addConstraint(Sketcher.Constraint("Equal", 9, 10))
sketch4.addConstraint(Sketcher.Constraint("Equal", 10, 11))
sketch4.addConstraint(Sketcher.Constraint("Equal", 11, 12))
sketch4.addConstraint(Sketcher.Constraint("Equal", 12, 13))
sketch4.addConstraint(Sketcher.Constraint("Equal", 13, 14))
sketch4.addConstraint(Sketcher.Constraint("Equal", 14, 15))
sketch4.addConstraint(Sketcher.Constraint("Equal", 15, 16))
sketch4.addConstraint(Sketcher.Constraint("Equal", 16, 17))
sketch4.addConstraint(Sketcher.Constraint("Symmetric", 0, 3, 9, 3, -1, 1))
sketch4.addConstraint(Sketcher.Constraint("Symmetric", 1, 3, 10, 3, -1, 1))
sketch4.addConstraint(Sketcher.Constraint("Symmetric", 2, 3, 11, 3, -1, 1))
sketch4.addConstraint(Sketcher.Constraint("Symmetric", 3, 3, 12, 3, -1, 1))
sketch4.addConstraint(Sketcher.Constraint("Symmetric", 4, 3, 13, 3, -1, 1))
sketch4.addConstraint(Sketcher.Constraint("Symmetric", 5, 3, 14, 3, -1, 1))
sketch4.addConstraint(Sketcher.Constraint("Symmetric", 6, 3, 15, 3, -1, 1))
sketch4.addConstraint(Sketcher.Constraint("Symmetric", 7, 3, 16, 3, -1, 1))
sketch4.addConstraint(Sketcher.Constraint("Symmetric", 8, 3, 17, 3, -1, 1))
sketch4.addConstraint(Sketcher.Constraint("Symmetric", 8, 3, 10, 3, -2))
sketch4.addConstraint(Sketcher.Constraint("Symmetric", 7, 3, 11, 3, -2))
sketch4.addConstraint(Sketcher.Constraint("Symmetric", 6, 3, 12, 3, -2))
sketch4.addConstraint(Sketcher.Constraint("Symmetric", 5, 3, 13, 3, -2))
sketch4.addConstraint(Sketcher.Constraint("PointOnObject", 0, 3, -2))
sketch4.addConstraint(Sketcher.Constraint("Diameter", 0, Q("4 mm")))
sketch4.addConstraint(Sketcher.Constraint("DistanceY", 0, 3, -1, 1, Q("39 mm")))
sketch4.addConstraint(Sketcher.Constraint("DistanceY", 3, 3, 6, 3, Q("39 mm")))
sketch4.addConstraint(Sketcher.Constraint("DistanceX", -1, 1, 3, 3, Q("33.774991 mm")))
sketch4.addConstraint(Sketcher.Constraint("DistanceY", 4, 3, -1, 1, Q("6.772279 mm")))
sketch4.addConstraint(Sketcher.Constraint("DistanceX", 1, 3, 2, 3, Q("11.729931 mm")))
sketch4.addConstraint(Sketcher.Constraint("DistanceY", 1, 3, 2, 3, Q("6.772279 mm")))
sketch4.addConstraint(Sketcher.Constraint("DistanceX", 3, 3, 4, 3, Q("4.632512 mm")))
sketch4.addConstraint(Sketcher.Constraint("DistanceY", 1, 3, 5, 3, Q("43.420291 mm")))
sketch4.addConstraint(Sketcher.Constraint("DistanceX", 10, 3, 8, 3, Q("26.677571 mm")))
pocket1 = body.newObject("PartDesign::Pocket", "Pocket")
pocket1.Profile = sketch4
pocket1.Length = 20

doc.recompute()
